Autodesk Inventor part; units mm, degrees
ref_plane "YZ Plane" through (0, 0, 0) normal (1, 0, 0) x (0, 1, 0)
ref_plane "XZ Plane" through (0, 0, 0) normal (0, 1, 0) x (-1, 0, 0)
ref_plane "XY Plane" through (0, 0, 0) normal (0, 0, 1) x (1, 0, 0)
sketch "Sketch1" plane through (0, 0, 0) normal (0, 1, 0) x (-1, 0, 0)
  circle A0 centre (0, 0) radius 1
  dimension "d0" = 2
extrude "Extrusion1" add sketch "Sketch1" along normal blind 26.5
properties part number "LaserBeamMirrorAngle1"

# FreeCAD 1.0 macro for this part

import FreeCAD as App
import Part
import Sketcher
Q = App.Units.Quantity

doc = App.newDocument("Part")
body = doc.addObject("PartDesign::Body", "Body")

# Sketch on XZ plane
sketch1 = body.newObject("Sketcher::SketchObject", "Sketch")
sketch1.AttachmentSupport = (doc.getObject("XZ_Plane"), [""])
sketch1.MapMode = "FlatFace"
sketch1.addGeometry(Part.Circle(App.Vector(0, 0, 0), App.Vector(0, 0, 1), 1), False)
sketch1.addConstraint([
    Sketcher.Constraint("Coincident", 0, 3, -1, 1),
    Sketcher.Constraint("Diameter", 0, Q("2 mm")),
])
pad1 = body.newObject("PartDesign::Pad", "Pad")
pad1.Profile = sketch1
pad1.Length = 26.5
pad1.Reversed = True

doc.recompute()
